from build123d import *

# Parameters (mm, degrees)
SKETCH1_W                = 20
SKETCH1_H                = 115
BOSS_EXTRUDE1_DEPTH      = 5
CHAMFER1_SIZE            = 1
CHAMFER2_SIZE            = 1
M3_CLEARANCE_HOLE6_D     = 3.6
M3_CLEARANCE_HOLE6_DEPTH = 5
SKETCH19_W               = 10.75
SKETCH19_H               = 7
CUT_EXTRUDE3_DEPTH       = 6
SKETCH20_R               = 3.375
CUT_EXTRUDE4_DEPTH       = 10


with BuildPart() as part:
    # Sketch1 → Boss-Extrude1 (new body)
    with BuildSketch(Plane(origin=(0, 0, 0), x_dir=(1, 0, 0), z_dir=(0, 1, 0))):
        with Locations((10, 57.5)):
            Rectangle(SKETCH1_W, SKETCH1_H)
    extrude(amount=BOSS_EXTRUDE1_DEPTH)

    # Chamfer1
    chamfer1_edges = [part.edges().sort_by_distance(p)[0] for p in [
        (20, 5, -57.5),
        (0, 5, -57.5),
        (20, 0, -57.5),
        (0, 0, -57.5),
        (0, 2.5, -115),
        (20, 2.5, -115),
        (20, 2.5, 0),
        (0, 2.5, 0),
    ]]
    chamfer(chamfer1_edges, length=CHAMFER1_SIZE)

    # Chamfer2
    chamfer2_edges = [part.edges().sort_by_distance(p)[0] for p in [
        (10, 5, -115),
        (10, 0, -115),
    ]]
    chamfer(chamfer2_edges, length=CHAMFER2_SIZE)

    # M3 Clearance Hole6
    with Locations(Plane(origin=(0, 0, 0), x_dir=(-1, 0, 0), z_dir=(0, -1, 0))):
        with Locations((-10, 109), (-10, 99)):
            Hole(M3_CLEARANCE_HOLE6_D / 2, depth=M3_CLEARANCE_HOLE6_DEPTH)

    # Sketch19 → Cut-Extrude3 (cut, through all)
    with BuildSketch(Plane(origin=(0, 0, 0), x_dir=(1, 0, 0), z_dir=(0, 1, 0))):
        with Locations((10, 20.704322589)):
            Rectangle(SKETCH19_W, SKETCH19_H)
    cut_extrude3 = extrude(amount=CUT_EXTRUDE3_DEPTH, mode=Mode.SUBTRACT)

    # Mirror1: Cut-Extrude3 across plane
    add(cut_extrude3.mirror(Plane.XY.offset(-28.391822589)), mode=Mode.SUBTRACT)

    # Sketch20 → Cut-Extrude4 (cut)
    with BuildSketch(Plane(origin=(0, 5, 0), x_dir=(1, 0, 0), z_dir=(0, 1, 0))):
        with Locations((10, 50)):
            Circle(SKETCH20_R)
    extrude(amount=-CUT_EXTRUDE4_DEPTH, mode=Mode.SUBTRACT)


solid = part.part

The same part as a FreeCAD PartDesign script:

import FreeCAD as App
import Part
import Sketcher
Q = App.Units.Quantity


def edges_at(feature, points):
    """Names of the edges that pass closest to the given points."""
    edges = feature.Shape.Edges
    near = lambda p: min(range(len(edges)), key=lambda i: edges[i].distToShape(Part.Vertex(*p))[0])
    return sorted({f"Edge{near(p) + 1}" for p in points})

doc = App.newDocument("Part")
body = doc.addObject("PartDesign::Body", "Body")

sketch1 = doc.addObject("Sketcher::SketchObject", "Sketch")
body.addObject(sketch1)
sketch1.AttachmentSupport = (doc.XZ_Plane, [""])
sketch1.MapMode = "FlatFace"
sketch1.addGeometry(Part.LineSegment(App.Vector(0, -115, 0), App.Vector(0, 0, 0)), False)
sketch1.addGeometry(Part.LineSegment(App.Vector(0, 0, 0), App.Vector(20, 0, 0)), False)
sketch1.addGeometry(Part.LineSegment(App.Vector(20, 0, 0), App.Vector(20, -115, 0)), False)
sketch1.addGeometry(Part.LineSegment(App.Vector(20, -115, 0), App.Vector(0, -115, 0)), False)
sketch1.addConstraint(Sketcher.Constraint("Coincident", 0, 2, 1, 1))
sketch1.addConstraint(Sketcher.Constraint("Coincident", 1, 2, 2, 1))
sketch1.addConstraint(Sketcher.Constraint("Coincident", 2, 2, 3, 1))
sketch1.addConstraint(Sketcher.Constraint("Coincident", 3, 2, 0, 1))
sketch1.addConstraint(Sketcher.Constraint("Vertical", 0))
sketch1.addConstraint(Sketcher.Constraint("Horizontal", 1))
sketch1.addConstraint(Sketcher.Constraint("Vertical", 2))
sketch1.addConstraint(Sketcher.Constraint("Horizontal", 3))
sketch1.addConstraint(Sketcher.Constraint("Coincident", 0, 2, -1, 1))
sketch1.addConstraint(Sketcher.Constraint("DistanceX", 1, 1, 1, 2, Q("20 mm")))
sketch1.addConstraint(Sketcher.Constraint("DistanceY", 0, 1, 0, 2, Q("115 mm")))
pad1 = doc.addObject("PartDesign::Pad", "Pad")
body.addObject(pad1)
pad1.Profile = sketch1
pad1.Length = 5
pad1.Reversed = True
doc.recompute()

chamfer = doc.addObject("PartDesign::Chamfer", "Chamfer")
body.addObject(chamfer)
chamfer.Base = (pad1, edges_at(pad1, [
    (20, 5, -57.5),
    (0, 5, -57.5),
    (20, 0, -57.5),
    (0, 0, -57.5),
    (0, 2.5, -115),
    (20, 2.5, -115),
    (20, 2.5, 0),
    (0, 2.5, 0),
]))
chamfer.Size = 1
doc.recompute()

chamfer2 = doc.addObject("PartDesign::Chamfer", "Chamfer001")
body.addObject(chamfer2)
chamfer2.Base = (chamfer, edges_at(chamfer, [(10, 5, -115), (10, 0, -115)]))
chamfer2.Size = 1

sketch2 = doc.addObject("Sketcher::SketchObject", "Sketch001")
body.addObject(sketch2)
sketch2.AttachmentSupport = (doc.XZ_Plane, [""])
sketch2.MapMode = "FlatFace"
sketch2.addGeometry(Part.Circle(App.Vector(10, -109, 0), App.Vector(0, 0, 1), 1.8), False)
sketch2.addGeometry(Part.Circle(App.Vector(10, -99, 0), App.Vector(0, 0, 1), 1.8), False)
sketch2.addConstraint(Sketcher.Constraint("Equal", 0, 1))
sketch2.addConstraint(Sketcher.Constraint("Vertical", 0, 3, 1, 3))
sketch2.addConstraint(Sketcher.Constraint("Diameter", 0, Q("3.6 mm")))
sketch2.addConstraint(Sketcher.Constraint("DistanceX", -1, 1, 0, 3, Q("10 mm")))
sketch2.addConstraint(Sketcher.Constraint("DistanceY", 0, 3, -1, 1, Q("109 mm")))
sketch2.addConstraint(Sketcher.Constraint("DistanceY", 1, 3, -1, 1, Q("99 mm")))
doc.recompute()
hole = doc.addObject("PartDesign::Hole", "Hole")
body.addObject(hole)
hole.Profile = sketch2
hole.ThreadType = "None"
hole.Diameter = 3.6
hole.DepthType = "Dimension"
hole.Depth = 5
hole.DrillPoint = "Flat"

sketch3 = doc.addObject("Sketcher::SketchObject", "Sketch002")
body.addObject(sketch3)
sketch3.AttachmentSupport = (doc.XZ_Plane, [""])
sketch3.MapMode = "FlatFace"
sketch3.addGeometry(Part.LineSegment(App.Vector(5, -24, 0), App.Vector(5, -17, 0)), False)
sketch3.addGeometry(Part.LineSegment(App.Vector(5, -17, 0), App.Vector(15, -17, 0)), False)
sketch3.addGeometry(Part.LineSegment(App.Vector(15, -17, 0), App.Vector(15, -24, 0)), False)
sketch3.addGeometry(Part.LineSegment(App.Vector(15, -24, 0), App.Vector(5, -24, 0)), False)
sketch3.addConstraint(Sketcher.Constraint("Coincident", 0, 2, 1, 1))
sketch3.addConstraint(Sketcher.Constraint("Coincident", 1, 2, 2, 1))
sketch3.addConstraint(Sketcher.Constraint("Coincident", 2, 2, 3, 1))
sketch3.addConstraint(Sketcher.Constraint("Coincident", 3, 2, 0, 1))
sketch3.addConstraint(Sketcher.Constraint("Vertical", 0))
sketch3.addConstraint(Sketcher.Constraint("Horizontal", 1))
sketch3.addConstraint(Sketcher.Constraint("Vertical", 2))
sketch3.addConstraint(Sketcher.Constraint("Horizontal", 3))
sketch3.addConstraint(Sketcher.Constraint("DistanceY", 0, 1, 0, 2, Q("7 mm")))
sketch3.addConstraint(Sketcher.Constraint("DistanceX", 1, 1, 1, 2, Q("10.75 mm")))
sketch3.addConstraint(Sketcher.Constraint("DistanceX", -1, 1, 0, 2, Q("4.625 mm")))
sketch3.addConstraint(Sketcher.Constraint("DistanceY", 0, 2, -1, 1, Q("17.204323 mm")))
pocket1 = doc.addObject("PartDesign::Pocket", "Pocket")
body.addObject(pocket1)
pocket1.Profile = sketch3
pocket1.Type = "ThroughAll"
doc.recompute()

datumplane = doc.addObject("PartDesign::Plane", "DatumPlane")
body.addObject(datumplane)
datumplane.AttachmentSupport = (doc.XY_Plane, [""])
datumplane.MapMode = "FlatFace"
datumplane.AttachmentOffset = App.Placement(App.Vector(0, 0, -28.391823), App.Rotation())
mirrored = doc.addObject("PartDesign::Mirrored", "Mirrored")
body.addObject(mirrored)
mirrored.Originals = [pocket1]
mirrored.MirrorPlane = (datumplane, [""])
body.Tip = mirrored

sketch4 = doc.addObject("Sketcher::SketchObject", "Sketch003")
body.addObject(sketch4)
sketch4.AttachmentSupport = (doc.XZ_Plane, [""])
sketch4.MapMode = "FlatFace"
sketch4.AttachmentOffset = App.Placement(App.Vector(0, 0, -5), App.Rotation())
sketch4.addGeometry(Part.Circle(App.Vector(10, -50, 0), App.Vector(0, 0, 1), 3.4), False)
sketch4.addConstraint(Sketcher.Constraint("Diameter", 0, Q("6.75 mm")))
sketch4.addConstraint(Sketcher.Constraint("DistanceX", -1, 1, 0, 3, Q("10 mm")))
sketch4.addConstraint(Sketcher.Constraint("DistanceY", 0, 3, -1, 1, Q("50 mm")))
pocket2 = doc.addObject("PartDesign::Pocket", "Pocket001")
body.addObject(pocket2)
pocket2.Profile = sketch4
pocket2.Length = 10
pocket2.Reversed = True

doc.recompute()
